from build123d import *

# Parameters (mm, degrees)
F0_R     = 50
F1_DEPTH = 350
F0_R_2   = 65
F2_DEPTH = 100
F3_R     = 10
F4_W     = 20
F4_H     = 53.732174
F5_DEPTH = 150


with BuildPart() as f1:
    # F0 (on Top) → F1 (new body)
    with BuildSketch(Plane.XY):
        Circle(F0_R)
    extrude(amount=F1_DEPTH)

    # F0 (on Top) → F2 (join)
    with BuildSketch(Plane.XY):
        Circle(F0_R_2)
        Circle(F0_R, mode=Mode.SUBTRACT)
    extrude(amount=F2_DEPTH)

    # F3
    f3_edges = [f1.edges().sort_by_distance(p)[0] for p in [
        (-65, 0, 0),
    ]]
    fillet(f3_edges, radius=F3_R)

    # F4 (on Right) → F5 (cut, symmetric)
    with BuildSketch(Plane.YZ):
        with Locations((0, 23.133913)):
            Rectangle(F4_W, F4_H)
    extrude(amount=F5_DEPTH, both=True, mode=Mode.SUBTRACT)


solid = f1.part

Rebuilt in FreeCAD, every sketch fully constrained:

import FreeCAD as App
import Part
import Sketcher
from FreeCAD import Vector
Q = App.Units.Quantity


def edges_at(feature, points):
    """Names of the edges that pass closest to the given points."""
    edges = feature.Shape.Edges
    near = lambda p: min(range(len(edges)), key=lambda i: edges[i].distToShape(Part.Vertex(*p))[0])
    return sorted({f"Edge{near(p) + 1}" for p in points})


def add_polygon(sketch, points):
    """Adds a closed chain of lines whose ends are joined by coincident constraints."""
    first, n = sketch.GeometryCount, len(points)
    for a, b in zip(points, points[1:] + points[:1]):
        sketch.addGeometry(Part.LineSegment(App.Vector(*a, 0), App.Vector(*b, 0)), False)
    for i in range(n):
        sketch.addConstraint(Sketcher.Constraint("Coincident", first + i, 2, first + (i + 1) % n, 1))

doc = App.newDocument("Part")
body = doc.addObject("PartDesign::Body", "Body")

sketch1 = body.newObject("Sketcher::SketchObject", "Sketch")
sketch1.AttachmentSupport = (doc.getObject("XY_Plane"), [""])
sketch1.MapMode = "FlatFace"
sketch1.addGeometry(Part.Circle(Vector(0, 0, 0), Vector(0, 0, 1), 50), False)
sketch1.addConstraint([
    Sketcher.Constraint("Coincident", 0, 3, -1, 1),
    Sketcher.Constraint("Diameter", 0, Q("100 mm")),
])
pad1 = body.newObject("PartDesign::Pad", "Pad")
pad1.Profile = sketch1
pad1.Length = 350

sketch2 = body.newObject("Sketcher::SketchObject", "Sketch001")
sketch2.AttachmentSupport = (doc.getObject("XY_Plane"), [""])
sketch2.MapMode = "FlatFace"
sketch2.addGeometry([
    Part.Circle(Vector(0, 0, 0), Vector(0, 0, 1), 65),
    Part.Circle(Vector(0, 0, 0), Vector(0, 0, 1), 50),
], False)
sketch2.addConstraint([
    Sketcher.Constraint("Coincident", 0, 3, -1, 1),
    Sketcher.Constraint("Coincident", 1, 3, -1, 1),
    Sketcher.Constraint("Diameter", 0, Q("130 mm")),
    Sketcher.Constraint("Diameter", 1, Q("100 mm")),
])
pad2 = body.newObject("PartDesign::Pad", "Pad001")
pad2.Profile = sketch2
pad2.Length = 100
doc.recompute()

fillet = body.newObject("PartDesign::Fillet", "Fillet")
fillet.Base = (pad2, edges_at(pad2, [(-65, 0, 0)]))
fillet.Radius = 10

sketch3 = body.newObject("Sketcher::SketchObject", "Sketch002")
sketch3.AttachmentSupport = (doc.getObject("YZ_Plane"), [""])
sketch3.MapMode = "FlatFace"
add_polygon(sketch3, [(-10, 50), (-10, -3.732174), (10, -3.732174), (10, 50)])
sketch3.addConstraint([
    Sketcher.Constraint("Vertical", 0),
    Sketcher.Constraint("Horizontal", 1),
    Sketcher.Constraint("Vertical", 2),
    Sketcher.Constraint("Horizontal", 3),
    Sketcher.Constraint("DistanceX", 1, 1, 1, 2, Q("20 mm")),
    Sketcher.Constraint("DistanceX", 0, 2, -1, 1, Q("10 mm")),
    Sketcher.Constraint("DistanceY", -1, 1, 2, 2, Q("50 mm")),
    Sketcher.Constraint("DistanceY", 0, 2, 0, 1, Q("53.732174 mm")),
])
pocket1 = body.newObject("PartDesign::Pocket", "Pocket")
pocket1.Profile = sketch3
pocket1.Length = 300
pocket1.Midplane = True

doc.recompute()
